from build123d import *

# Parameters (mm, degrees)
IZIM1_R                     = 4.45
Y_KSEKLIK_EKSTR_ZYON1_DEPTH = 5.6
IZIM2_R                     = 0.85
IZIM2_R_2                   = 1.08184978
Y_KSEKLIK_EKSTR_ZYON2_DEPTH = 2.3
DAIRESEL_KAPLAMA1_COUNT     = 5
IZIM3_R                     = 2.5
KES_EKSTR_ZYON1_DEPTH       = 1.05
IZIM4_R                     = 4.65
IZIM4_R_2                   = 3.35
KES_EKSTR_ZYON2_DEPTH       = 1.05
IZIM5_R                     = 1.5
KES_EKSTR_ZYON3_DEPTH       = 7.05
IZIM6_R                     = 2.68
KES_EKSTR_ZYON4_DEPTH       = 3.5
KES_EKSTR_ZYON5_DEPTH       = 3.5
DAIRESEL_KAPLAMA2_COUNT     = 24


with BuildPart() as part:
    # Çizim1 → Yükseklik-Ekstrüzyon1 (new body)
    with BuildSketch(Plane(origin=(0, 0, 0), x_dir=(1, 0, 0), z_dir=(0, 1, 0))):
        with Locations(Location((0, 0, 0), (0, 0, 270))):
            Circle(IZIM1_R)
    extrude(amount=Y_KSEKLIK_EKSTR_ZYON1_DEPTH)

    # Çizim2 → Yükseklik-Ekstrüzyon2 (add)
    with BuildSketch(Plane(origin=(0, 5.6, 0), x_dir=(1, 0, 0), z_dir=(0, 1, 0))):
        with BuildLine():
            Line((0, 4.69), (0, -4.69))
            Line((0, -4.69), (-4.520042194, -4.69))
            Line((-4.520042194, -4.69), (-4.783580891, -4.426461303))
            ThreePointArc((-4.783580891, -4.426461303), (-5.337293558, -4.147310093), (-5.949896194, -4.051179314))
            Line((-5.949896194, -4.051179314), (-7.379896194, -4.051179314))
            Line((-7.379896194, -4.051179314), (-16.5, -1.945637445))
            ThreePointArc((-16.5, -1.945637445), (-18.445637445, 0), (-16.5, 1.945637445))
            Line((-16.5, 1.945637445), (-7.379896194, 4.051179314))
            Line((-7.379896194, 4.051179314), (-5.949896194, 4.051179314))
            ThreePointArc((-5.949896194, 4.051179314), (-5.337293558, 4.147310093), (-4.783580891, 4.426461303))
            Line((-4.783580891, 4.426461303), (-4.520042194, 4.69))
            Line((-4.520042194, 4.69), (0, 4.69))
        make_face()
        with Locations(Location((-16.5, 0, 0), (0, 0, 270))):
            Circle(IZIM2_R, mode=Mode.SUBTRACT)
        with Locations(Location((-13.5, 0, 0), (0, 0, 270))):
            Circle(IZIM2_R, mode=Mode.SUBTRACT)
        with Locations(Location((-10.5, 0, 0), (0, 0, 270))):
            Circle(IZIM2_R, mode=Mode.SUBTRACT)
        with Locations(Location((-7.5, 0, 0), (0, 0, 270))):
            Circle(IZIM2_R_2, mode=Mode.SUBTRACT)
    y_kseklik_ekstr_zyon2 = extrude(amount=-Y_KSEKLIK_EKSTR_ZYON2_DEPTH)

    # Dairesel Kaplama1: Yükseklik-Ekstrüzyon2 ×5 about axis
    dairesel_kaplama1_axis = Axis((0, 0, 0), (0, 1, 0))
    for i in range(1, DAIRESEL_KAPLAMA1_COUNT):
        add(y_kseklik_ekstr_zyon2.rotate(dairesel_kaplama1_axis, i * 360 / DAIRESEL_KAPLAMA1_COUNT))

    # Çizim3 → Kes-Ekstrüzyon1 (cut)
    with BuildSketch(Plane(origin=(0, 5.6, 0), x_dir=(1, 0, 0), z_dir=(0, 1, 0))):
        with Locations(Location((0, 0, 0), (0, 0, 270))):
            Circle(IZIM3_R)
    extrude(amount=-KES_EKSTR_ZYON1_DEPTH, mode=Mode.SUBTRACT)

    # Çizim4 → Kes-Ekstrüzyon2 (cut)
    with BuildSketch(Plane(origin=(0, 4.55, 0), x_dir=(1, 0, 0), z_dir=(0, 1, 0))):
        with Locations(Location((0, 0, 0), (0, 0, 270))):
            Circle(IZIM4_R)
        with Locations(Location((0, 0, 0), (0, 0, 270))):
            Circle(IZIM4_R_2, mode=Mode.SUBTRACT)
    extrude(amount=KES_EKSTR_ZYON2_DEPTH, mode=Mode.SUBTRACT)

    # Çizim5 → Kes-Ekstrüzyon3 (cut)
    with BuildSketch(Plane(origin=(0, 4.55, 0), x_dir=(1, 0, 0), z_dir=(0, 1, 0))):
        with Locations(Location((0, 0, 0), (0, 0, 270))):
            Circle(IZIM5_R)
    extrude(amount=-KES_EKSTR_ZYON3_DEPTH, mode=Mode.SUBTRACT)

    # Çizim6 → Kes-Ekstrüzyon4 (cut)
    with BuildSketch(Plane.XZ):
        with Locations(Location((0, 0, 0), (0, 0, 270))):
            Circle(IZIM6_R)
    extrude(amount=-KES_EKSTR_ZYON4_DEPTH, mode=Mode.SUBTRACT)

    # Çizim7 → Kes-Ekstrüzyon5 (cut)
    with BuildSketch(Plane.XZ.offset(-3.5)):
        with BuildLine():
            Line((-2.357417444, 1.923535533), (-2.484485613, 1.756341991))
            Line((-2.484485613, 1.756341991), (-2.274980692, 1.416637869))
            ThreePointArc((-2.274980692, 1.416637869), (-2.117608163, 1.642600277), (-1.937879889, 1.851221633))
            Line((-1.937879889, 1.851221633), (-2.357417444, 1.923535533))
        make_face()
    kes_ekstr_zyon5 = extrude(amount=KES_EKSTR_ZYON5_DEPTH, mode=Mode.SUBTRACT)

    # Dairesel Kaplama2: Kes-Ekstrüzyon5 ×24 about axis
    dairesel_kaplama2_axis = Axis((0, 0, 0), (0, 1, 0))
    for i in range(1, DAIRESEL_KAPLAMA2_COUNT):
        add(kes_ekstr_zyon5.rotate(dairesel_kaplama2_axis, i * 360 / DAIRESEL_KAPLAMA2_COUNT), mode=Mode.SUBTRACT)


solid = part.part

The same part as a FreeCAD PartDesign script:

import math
import FreeCAD as App
import Part
import Sketcher

V = App.Vector
Q = App.Units.Quantity

doc = App.newDocument("Part")
body = doc.addObject("PartDesign::Body", "Body")

# Sketch on XZ plane
sketch1 = body.newObject("Sketcher::SketchObject", "Sketch")
sketch1.AttachmentSupport = (doc.getObject("XZ_Plane"), [""])
sketch1.MapMode = "FlatFace"
sketch1.addGeometry(Part.Circle(V(0, 0, 0), V(0, 0, 1), 4.45), False)
sketch1.addConstraint([
    Sketcher.Constraint("Coincident", 0, 3, -1, 1),
    Sketcher.Constraint("Diameter", 0, 8.9),
])
pad1 = body.newObject("PartDesign::Pad", "Pad")
pad1.Profile = sketch1
pad1.Length = 5.6
pad1.Reversed = True

# Sketch on XZ plane
sketch2 = body.newObject("Sketcher::SketchObject", "Sketch001")
sketch2.AttachmentSupport = (doc.getObject("XZ_Plane"), [""])
sketch2.MapMode = "FlatFace"
sketch2.AttachmentOffset = App.Placement(V(0, 0, -5.6), App.Rotation())
sketch2.addGeometry([
    Part.LineSegment(V(0, 4.69, 0), V(0, -4.69, 0)),  # 0
    Part.LineSegment(V(0, -4.69, 0), V(-4.520042, -4.69, 0)),  # 1
    Part.LineSegment(V(-4.520042, -4.69, 0), V(-4.783581, -4.426461, 0)),  # 2
    Part.ArcOfCircle(Part.Circle(V(-5.949896, -6.051179, 0), V(0, 0, 1), 2), math.radians(54.327057), math.radians(90)),  # 3
    Part.LineSegment(V(-5.949896, -4.051179, 0), V(-7.379896, -4.051179, 0)),  # 4
    Part.LineSegment(V(-7.379896, -4.051179, 0), V(-16.5, -1.945637, 0)),  # 5
    Part.ArcOfCircle(Part.Circle(V(-16.5, 0, 0), V(0, 0, 1), 1.945637), math.radians(90), math.radians(270)),  # 6
    Part.LineSegment(V(-16.5, 1.945637, 0), V(-7.379896, 4.051179, 0)),  # 7
    Part.LineSegment(V(-7.379896, 4.051179, 0), V(-5.949896, 4.051179, 0)),  # 8
    Part.ArcOfCircle(Part.Circle(V(-5.949896, 6.051179, 0), V(0, 0, 1), 2), math.radians(-90), math.radians(-54.327057)),  # 9
    Part.LineSegment(V(-4.783581, 4.426461, 0), V(-4.520042, 4.69, 0)),  # 10
    Part.LineSegment(V(-4.520042, 4.69, 0), V(0, 4.69, 0)),  # 11
    Part.Circle(V(-7.5, 0, 0), V(0, 0, 1), 1.08185),  # 12
    Part.Circle(V(-10.5, 0, 0), V(0, 0, 1), 0.85),  # 13
    Part.Circle(V(-13.5, 0, 0), V(0, 0, 1), 0.85),  # 14
    Part.Circle(V(-16.5, 0, 0), V(0, 0, 1), 0.85),  # 15
], False)
sketch2.addConstraint([
    Sketcher.Constraint("Coincident", 0, 2, 1, 1),
    Sketcher.Constraint("Coincident", 1, 2, 2, 1),
    Sketcher.Constraint("Coincident", 2, 2, 3, 1),
    Sketcher.Constraint("Tangent", 3, 2, 4, 1),
    Sketcher.Constraint("Coincident", 4, 2, 5, 1),
    Sketcher.Constraint("Coincident", 5, 2, 6, 2),
    Sketcher.Constraint("Coincident", 6, 1, 7, 1),
    Sketcher.Constraint("Coincident", 7, 2, 8, 1),
    Sketcher.Constraint("Tangent", 8, 2, 9, 1),
    Sketcher.Constraint("Coincident", 9, 2, 10, 1),
    Sketcher.Constraint("Coincident", 10, 2, 11, 1),
    Sketcher.Constraint("Coincident", 11, 2, 0, 1),
    Sketcher.Constraint("Vertical", 0),
    Sketcher.Constraint("Horizontal", 1),
    Sketcher.Constraint("Horizontal", 4),
    Sketcher.Constraint("Horizontal", 8),
    Sketcher.Constraint("Horizontal", 11),
    Sketcher.Constraint("Coincident", 15, 3, 6, 3),
    Sketcher.Constraint("Equal", 3, 9),
    Sketcher.Constraint("Equal", 13, 14),
    Sketcher.Constraint("Equal", 14, 15),
    Sketcher.Constraint("Symmetric", 0, 2, 11, 2, -1, 1),
    Sketcher.Constraint("Symmetric", 3, 3, 9, 3, -1),
    Sketcher.Constraint("Symmetric", 5, 2, 6, 1, -1),
    Sketcher.Constraint("PointOnObject", 12, 3, -1),
    Sketcher.Constraint("PointOnObject", 13, 3, -1),
    Sketcher.Constraint("PointOnObject", 14, 3, -1),
    Sketcher.Constraint("Perpendicular", 2, 10),
    Sketcher.Constraint("Vertical", 15, 3, 5, 2),
    Sketcher.Constraint("Vertical", 4, 2, 7, 2),
    Sketcher.Constraint("Vertical", 2, 2, 9, 2),
    Sketcher.Constraint("Vertical", 1, 2, 10, 2),
    Sketcher.Constraint("Radius", 3, 2.0),
    Sketcher.Constraint("Diameter", 13, 1.7),
    Sketcher.Constraint("Angle", 5, Q("167 deg")),
    Sketcher.Constraint("DistanceX", 6, 3, 12, 3, 9.0),
    Sketcher.Constraint("DistanceX", 13, 3, 12, 3, 3.0),
    Sketcher.Constraint("DistanceX", 6, 3, 14, 3, 3.0),
    Sketcher.Constraint("Diameter", 12, 2.1637),
    Sketcher.Constraint("DistanceX", 4, 2, 4, 1, 1.43),
    Sketcher.Constraint("DistanceY", 0, 2, 0, 1, 9.38),
    Sketcher.Constraint("DistanceX", 6, 3, -1, 1, 16.5),
    Sketcher.Constraint("Distance", 5, 9.36),
    Sketcher.Constraint("Radius", 6, 1.945637),
    Sketcher.Constraint("Distance", 2, 0.3727),
])
pad2 = body.newObject("PartDesign::Pad", "Pad001")
pad2.Profile = sketch2
pad2.Length = 2.3
doc.recompute()

polarpattern = body.newObject("PartDesign::PolarPattern", "PolarPattern")
polarpattern.Originals = [pad2]
polarpattern.Axis = (doc.getObject("Y_Axis"), [""])
polarpattern.Angle = 360
polarpattern.Occurrences = 5
body.Tip = polarpattern

# Sketch on XZ plane
sketch3 = body.newObject("Sketcher::SketchObject", "Sketch002")
sketch3.AttachmentSupport = (doc.getObject("XZ_Plane"), [""])
sketch3.MapMode = "FlatFace"
sketch3.AttachmentOffset = App.Placement(V(0, 0, -5.6), App.Rotation())
sketch3.addGeometry(Part.Circle(V(0, 0, 0), V(0, 0, 1), 2.5), False)
sketch3.addConstraint([
    Sketcher.Constraint("Coincident", 0, 3, -1, 1),
    Sketcher.Constraint("Diameter", 0, 5.0),
])
pocket1 = body.newObject("PartDesign::Pocket", "Pocket")
pocket1.Profile = sketch3
pocket1.Length = 1.05
pocket1.Reversed = True

# Sketch on XZ plane
sketch4 = body.newObject("Sketcher::SketchObject", "Sketch003")
sketch4.AttachmentSupport = (doc.getObject("XZ_Plane"), [""])
sketch4.MapMode = "FlatFace"
sketch4.AttachmentOffset = App.Placement(V(0, 0, -4.55), App.Rotation())
sketch4.addGeometry([
    Part.Circle(V(0, 0, 0), V(0, 0, 1), 4.65),
    Part.Circle(V(0, 0, 0), V(0, 0, 1), 3.35),
], False)
sketch4.addConstraint([
    Sketcher.Constraint("Coincident", 0, 3, -1, 1),
    Sketcher.Constraint("Coincident", 1, 3, -1, 1),
    Sketcher.Constraint("Diameter", 0, 9.3),
    Sketcher.Constraint("Diameter", 1, 6.7),
])
pocket2 = body.newObject("PartDesign::Pocket", "Pocket001")
pocket2.Profile = sketch4
pocket2.Length = 1.05

# Sketch on XZ plane
sketch5 = body.newObject("Sketcher::SketchObject", "Sketch004")
sketch5.AttachmentSupport = (doc.getObject("XZ_Plane"), [""])
sketch5.MapMode = "FlatFace"
sketch5.AttachmentOffset = App.Placement(V(0, 0, -4.55), App.Rotation())
sketch5.addGeometry(Part.Circle(V(0, 0, 0), V(0, 0, 1), 1.5), False)
sketch5.addConstraint([
    Sketcher.Constraint("Coincident", 0, 3, -1, 1),
    Sketcher.Constraint("Diameter", 0, 3.0),
])
pocket3 = body.newObject("PartDesign::Pocket", "Pocket002")
pocket3.Profile = sketch5
pocket3.Length = 7.05
pocket3.Reversed = True

# Sketch on XZ plane
sketch6 = body.newObject("Sketcher::SketchObject", "Sketch005")
sketch6.AttachmentSupport = (doc.getObject("XZ_Plane"), [""])
sketch6.MapMode = "FlatFace"
sketch6.addGeometry(Part.Circle(V(0, 0, 0), V(0, 0, 1), 2.68), False)
sketch6.addConstraint([
    Sketcher.Constraint("Coincident", 0, 3, -1, 1),
    Sketcher.Constraint("Diameter", 0, 5.36),
])
pocket4 = body.newObject("PartDesign::Pocket", "Pocket003")
pocket4.Profile = sketch6
pocket4.Length = 3.5

# Sketch on XZ plane
sketch7 = body.newObject("Sketcher::SketchObject", "Sketch006")
sketch7.AttachmentSupport = (doc.getObject("XZ_Plane"), [""])
sketch7.MapMode = "FlatFace"
sketch7.AttachmentOffset = App.Placement(V(0, 0, -3.5), App.Rotation())
sketch7.addGeometry([
    Part.LineSegment(V(-2.357417, 1.923536, 0), V(-2.484486, 1.756342, 0)),
    Part.LineSegment(V(-2.484486, 1.756342, 0), V(-2.274981, 1.416638, 0)),
    Part.ArcOfCircle(Part.Circle(V(0, 0, 0), V(0, 0, 1), 2.68), math.radians(136.310149), math.radians(148.089344)),
    Part.LineSegment(V(-1.93788, 1.851222, 0), V(-2.357417, 1.923536, 0)),
], False)
sketch7.addConstraint([
    Sketcher.Constraint("Coincident", 0, 2, 1, 1),
    Sketcher.Constraint("Coincident", 1, 2, 2, 2),
    Sketcher.Constraint("Coincident", 2, 1, 3, 1),
    Sketcher.Constraint("Coincident", 3, 2, 0, 1),
    Sketcher.Constraint("Coincident", 2, 3, -1, 1),
    Sketcher.Constraint("Radius", 2, 2.68),
    Sketcher.Constraint("Distance", 0, 0.21),
    Sketcher.Constraint("DistanceX", 1, 2, 2, 1, 0.337101),
    Sketcher.Constraint("DistanceY", -1, 1, 0, 2, 1.756342),
    Sketcher.Constraint("DistanceX", 1, 2, -1, 1, 2.274981),
    Sketcher.Constraint("DistanceX", 0, 2, 3, 2, 0.127068),
    Sketcher.Constraint("Distance", 1, 0.399113),
])
pocket5 = body.newObject("PartDesign::Pocket", "Pocket004")
pocket5.Profile = sketch7
pocket5.Length = 3.5
pocket5.Reversed = True
doc.recompute()

polarpattern2 = body.newObject("PartDesign::PolarPattern", "PolarPattern001")
polarpattern2.Originals = [pocket5]
polarpattern2.Axis = (doc.getObject("Y_Axis"), [""])
polarpattern2.Angle = 360
polarpattern2.Occurrences = 24
body.Tip = polarpattern2

doc.recompute()
